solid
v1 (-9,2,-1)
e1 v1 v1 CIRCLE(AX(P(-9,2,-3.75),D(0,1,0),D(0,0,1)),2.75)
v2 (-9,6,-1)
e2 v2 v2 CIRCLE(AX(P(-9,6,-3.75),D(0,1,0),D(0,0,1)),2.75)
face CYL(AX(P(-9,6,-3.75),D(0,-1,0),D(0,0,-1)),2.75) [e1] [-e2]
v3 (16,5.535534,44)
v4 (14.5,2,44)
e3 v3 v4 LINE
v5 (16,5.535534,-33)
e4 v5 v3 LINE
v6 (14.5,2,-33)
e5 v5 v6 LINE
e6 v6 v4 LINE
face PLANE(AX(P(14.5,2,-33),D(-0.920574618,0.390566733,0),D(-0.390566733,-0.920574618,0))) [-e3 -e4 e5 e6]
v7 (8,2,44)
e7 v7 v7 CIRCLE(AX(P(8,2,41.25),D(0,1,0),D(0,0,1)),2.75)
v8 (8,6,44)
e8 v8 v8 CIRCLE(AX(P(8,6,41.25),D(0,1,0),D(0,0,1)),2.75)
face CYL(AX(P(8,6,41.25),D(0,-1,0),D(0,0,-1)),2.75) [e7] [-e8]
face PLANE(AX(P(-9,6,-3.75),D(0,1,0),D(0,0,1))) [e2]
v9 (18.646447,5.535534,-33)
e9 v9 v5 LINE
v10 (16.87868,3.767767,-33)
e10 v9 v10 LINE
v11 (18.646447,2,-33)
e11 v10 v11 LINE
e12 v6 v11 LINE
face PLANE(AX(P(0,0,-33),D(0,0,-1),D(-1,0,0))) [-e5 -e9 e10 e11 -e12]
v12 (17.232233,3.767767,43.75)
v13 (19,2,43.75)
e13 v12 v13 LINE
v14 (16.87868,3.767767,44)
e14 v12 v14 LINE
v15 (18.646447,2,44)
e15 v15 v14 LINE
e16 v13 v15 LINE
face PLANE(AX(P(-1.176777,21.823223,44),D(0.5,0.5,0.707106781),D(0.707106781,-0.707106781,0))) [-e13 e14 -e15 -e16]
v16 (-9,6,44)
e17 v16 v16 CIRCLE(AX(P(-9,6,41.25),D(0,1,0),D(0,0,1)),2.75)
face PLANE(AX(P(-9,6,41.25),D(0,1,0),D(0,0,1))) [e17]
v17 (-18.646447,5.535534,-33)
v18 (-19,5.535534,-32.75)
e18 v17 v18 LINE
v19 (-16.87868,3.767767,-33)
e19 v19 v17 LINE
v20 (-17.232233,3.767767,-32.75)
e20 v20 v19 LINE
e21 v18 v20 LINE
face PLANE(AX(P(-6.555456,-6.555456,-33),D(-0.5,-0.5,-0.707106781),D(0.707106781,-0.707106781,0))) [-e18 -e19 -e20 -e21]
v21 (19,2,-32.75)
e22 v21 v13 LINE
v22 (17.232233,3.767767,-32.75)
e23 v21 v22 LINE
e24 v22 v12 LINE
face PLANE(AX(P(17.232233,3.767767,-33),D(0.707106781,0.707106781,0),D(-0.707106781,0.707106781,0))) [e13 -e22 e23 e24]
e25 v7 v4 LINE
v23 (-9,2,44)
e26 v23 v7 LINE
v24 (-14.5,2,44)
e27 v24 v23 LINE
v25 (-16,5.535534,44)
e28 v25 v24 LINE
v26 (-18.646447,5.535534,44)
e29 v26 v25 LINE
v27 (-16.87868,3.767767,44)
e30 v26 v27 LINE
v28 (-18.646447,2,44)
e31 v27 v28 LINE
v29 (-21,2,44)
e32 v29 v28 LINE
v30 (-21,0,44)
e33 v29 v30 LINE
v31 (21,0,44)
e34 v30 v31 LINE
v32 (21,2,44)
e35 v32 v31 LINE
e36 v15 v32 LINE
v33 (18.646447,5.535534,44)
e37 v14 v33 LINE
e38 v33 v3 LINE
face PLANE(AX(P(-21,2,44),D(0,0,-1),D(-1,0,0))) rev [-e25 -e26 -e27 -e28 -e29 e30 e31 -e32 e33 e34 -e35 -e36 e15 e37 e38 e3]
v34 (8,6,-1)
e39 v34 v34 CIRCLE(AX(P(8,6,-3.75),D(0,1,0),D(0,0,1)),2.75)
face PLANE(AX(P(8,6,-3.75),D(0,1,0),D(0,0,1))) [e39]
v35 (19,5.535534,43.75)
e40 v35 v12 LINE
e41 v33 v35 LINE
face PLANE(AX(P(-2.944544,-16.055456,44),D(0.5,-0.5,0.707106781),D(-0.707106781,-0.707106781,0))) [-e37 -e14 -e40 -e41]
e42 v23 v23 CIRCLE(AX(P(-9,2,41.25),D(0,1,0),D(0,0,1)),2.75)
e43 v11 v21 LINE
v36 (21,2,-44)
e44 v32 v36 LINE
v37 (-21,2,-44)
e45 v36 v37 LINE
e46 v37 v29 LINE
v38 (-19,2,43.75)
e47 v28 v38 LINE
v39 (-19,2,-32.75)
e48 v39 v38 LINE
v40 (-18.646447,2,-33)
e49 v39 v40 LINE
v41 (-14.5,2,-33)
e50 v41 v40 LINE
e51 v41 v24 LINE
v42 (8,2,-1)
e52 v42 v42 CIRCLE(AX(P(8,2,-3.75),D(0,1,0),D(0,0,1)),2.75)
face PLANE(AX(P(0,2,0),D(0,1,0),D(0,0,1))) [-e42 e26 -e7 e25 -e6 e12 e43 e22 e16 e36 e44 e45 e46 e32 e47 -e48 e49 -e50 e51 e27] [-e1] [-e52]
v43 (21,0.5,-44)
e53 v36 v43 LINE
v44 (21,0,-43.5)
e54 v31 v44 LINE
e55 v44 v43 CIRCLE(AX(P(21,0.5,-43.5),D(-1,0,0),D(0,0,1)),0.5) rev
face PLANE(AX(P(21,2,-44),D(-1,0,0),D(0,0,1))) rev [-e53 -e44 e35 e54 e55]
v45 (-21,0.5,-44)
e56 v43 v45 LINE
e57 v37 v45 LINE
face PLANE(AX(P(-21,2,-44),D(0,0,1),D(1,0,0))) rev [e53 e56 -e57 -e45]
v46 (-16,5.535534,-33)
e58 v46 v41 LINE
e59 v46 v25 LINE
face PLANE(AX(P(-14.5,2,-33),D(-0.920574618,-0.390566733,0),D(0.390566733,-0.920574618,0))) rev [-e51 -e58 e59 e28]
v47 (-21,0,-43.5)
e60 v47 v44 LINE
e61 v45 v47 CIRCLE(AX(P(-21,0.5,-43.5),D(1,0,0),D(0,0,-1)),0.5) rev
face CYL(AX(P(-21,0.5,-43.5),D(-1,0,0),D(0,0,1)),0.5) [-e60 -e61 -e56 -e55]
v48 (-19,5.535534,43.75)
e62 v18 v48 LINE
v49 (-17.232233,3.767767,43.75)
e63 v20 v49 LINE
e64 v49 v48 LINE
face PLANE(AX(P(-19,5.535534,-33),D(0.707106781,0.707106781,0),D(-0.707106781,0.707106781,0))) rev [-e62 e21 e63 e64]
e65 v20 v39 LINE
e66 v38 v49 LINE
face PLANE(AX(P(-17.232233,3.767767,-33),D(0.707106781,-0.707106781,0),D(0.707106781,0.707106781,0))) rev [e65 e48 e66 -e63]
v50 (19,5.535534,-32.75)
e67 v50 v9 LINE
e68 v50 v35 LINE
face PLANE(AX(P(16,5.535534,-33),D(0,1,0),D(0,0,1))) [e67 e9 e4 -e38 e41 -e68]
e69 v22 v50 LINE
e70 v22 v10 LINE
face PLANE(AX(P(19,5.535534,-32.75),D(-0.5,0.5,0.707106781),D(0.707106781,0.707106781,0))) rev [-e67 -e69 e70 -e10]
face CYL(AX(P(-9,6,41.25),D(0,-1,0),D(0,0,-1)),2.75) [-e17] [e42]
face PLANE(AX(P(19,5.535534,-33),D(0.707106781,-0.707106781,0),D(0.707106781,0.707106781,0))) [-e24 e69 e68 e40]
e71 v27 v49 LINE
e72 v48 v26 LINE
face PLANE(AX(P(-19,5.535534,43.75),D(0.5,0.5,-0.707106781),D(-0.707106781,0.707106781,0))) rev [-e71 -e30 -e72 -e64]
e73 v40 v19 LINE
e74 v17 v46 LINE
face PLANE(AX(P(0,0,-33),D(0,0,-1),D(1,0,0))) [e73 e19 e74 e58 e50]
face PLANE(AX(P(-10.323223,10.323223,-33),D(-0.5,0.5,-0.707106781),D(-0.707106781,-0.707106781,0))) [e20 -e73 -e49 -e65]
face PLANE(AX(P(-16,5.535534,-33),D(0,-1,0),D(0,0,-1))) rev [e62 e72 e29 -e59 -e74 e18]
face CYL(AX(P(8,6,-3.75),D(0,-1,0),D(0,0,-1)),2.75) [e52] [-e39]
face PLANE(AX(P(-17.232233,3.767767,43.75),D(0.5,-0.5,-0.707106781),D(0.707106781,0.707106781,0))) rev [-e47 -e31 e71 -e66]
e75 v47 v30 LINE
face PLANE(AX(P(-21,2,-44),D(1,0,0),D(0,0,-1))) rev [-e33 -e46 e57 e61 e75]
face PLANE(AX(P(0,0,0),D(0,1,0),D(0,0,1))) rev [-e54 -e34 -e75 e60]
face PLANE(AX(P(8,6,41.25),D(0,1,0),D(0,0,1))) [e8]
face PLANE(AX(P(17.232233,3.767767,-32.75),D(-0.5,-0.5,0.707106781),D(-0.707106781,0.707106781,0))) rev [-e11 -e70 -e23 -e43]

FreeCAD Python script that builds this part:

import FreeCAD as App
import Part
import Sketcher


def edges_at(feature, points):
    """Names of the edges that pass closest to the given points."""
    edges = feature.Shape.Edges
    near = lambda p: min(range(len(edges)), key=lambda i: edges[i].distToShape(Part.Vertex(*p))[0])
    return sorted({f"Edge{near(p) + 1}" for p in points})


def add_polygon(sketch, points):
    """Adds a closed chain of lines whose ends are joined by coincident constraints."""
    first, n = sketch.GeometryCount, len(points)
    for a, b in zip(points, points[1:] + points[:1]):
        sketch.addGeometry(Part.LineSegment(App.Vector(*a, 0), App.Vector(*b, 0)), False)
    for i in range(n):
        sketch.addConstraint(Sketcher.Constraint("Coincident", first + i, 2, first + (i + 1) % n, 1))

doc = App.newDocument("Part")
body = doc.addObject("PartDesign::Body", "Body")

sketch1 = doc.addObject("Sketcher::SketchObject", "Sketch")
body.addObject(sketch1)
sketch1.AttachmentSupport = (doc.XZ_Plane, [""])
sketch1.MapMode = "FlatFace"
add_polygon(sketch1, [(-21, -44), (-21, 44), (21, 44), (21, -44)])
sketch1.addConstraint([
    Sketcher.Constraint("Vertical", 0),
    Sketcher.Constraint("Horizontal", 1),
    Sketcher.Constraint("Vertical", 2),
    Sketcher.Constraint("Horizontal", 3),
    Sketcher.Constraint("Symmetric", 0, 2, 2, 2, -1, 1),
    Sketcher.Constraint("DistanceX", 1, 1, 1, 2, 42.0),
    Sketcher.Constraint("DistanceY", 0, 1, 0, 2, 88.0),
])
pad1 = doc.addObject("PartDesign::Pad", "Pad")
body.addObject(pad1)
pad1.Profile = sketch1
pad1.Length = 2
pad1.Reversed = True

sketch2 = doc.addObject("Sketcher::SketchObject", "Sketch001")
body.addObject(sketch2)
sketch2.AttachmentSupport = (doc.XY_Plane, [""])
sketch2.MapMode = "FlatFace"
sketch2.AttachmentOffset = App.Placement(App.Vector(0, 0, 44), App.Rotation())
add_polygon(sketch2, [(16, 5.535534), (14.5, 2), (19, 2), (17.232233, 3.767767), (19, 5.535534)])
sketch2.addConstraint([
    Sketcher.Constraint("Horizontal", 1),
    Sketcher.Constraint("Horizontal", 4),
    Sketcher.Constraint("Perpendicular", 2, 3),
    Sketcher.Constraint("Vertical", 1, 2, 3, 2),
    Sketcher.Constraint("Equal", 2, 3),
    Sketcher.Constraint("DistanceX", 4, 2, 4, 1, 3.0),
    Sketcher.Constraint("DistanceX", 1, 1, 1, 2, 4.5),
    Sketcher.Constraint("DistanceY", -1, 1, 0, 2, 2.0),
    Sketcher.Constraint("DistanceX", -1, 1, 1, 2, 19.0),
    Sketcher.Constraint("Distance", 2, 2.5),
])
pad2 = doc.addObject("PartDesign::Pad", "Pad001")
body.addObject(pad2)
pad2.Profile = sketch2
pad2.Length = 77
pad2.Reversed = True
doc.recompute()

mirrored = doc.addObject("PartDesign::Mirrored", "Mirrored")
body.addObject(mirrored)
mirrored.Originals = [pad2]
mirrored.MirrorPlane = (doc.YZ_Plane, [""])
body.Tip = mirrored

sketch3 = doc.addObject("Sketcher::SketchObject", "Sketch002")
body.addObject(sketch3)
sketch3.AttachmentSupport = (doc.XZ_Plane, [""])
sketch3.MapMode = "FlatFace"
sketch3.AttachmentOffset = App.Placement(App.Vector(0, 0, -2), App.Rotation())
sketch3.addGeometry([
    Part.Circle(App.Vector(-9, 41.25, 0), App.Vector(0, 0, 1), 2.75),
    Part.Circle(App.Vector(8, 41.25, 0), App.Vector(0, 0, 1), 2.75),
    Part.Circle(App.Vector(8, -3.75, 0), App.Vector(0, 0, 1), 2.75),
    Part.Circle(App.Vector(-9, -3.75, 0), App.Vector(0, 0, 1), 2.75),
], False)
sketch3.addConstraint([
    Sketcher.Constraint("Equal", 0, 1),
    Sketcher.Constraint("Equal", 1, 2),
    Sketcher.Constraint("Equal", 2, 3),
    Sketcher.Constraint("Horizontal", 0, 3, 1, 3),
    Sketcher.Constraint("Horizontal", 2, 3, 3, 3),
    Sketcher.Constraint("Vertical", 1, 3, 2, 3),
    Sketcher.Constraint("Vertical", 0, 3, 3, 3),
    Sketcher.Constraint("Diameter", 0, 5.5),
    Sketcher.Constraint("DistanceX", 0, 3, -1, 1, 9.0),
    Sketcher.Constraint("DistanceX", -1, 1, 1, 3, 8.0),
    Sketcher.Constraint("DistanceY", 2, 3, 1, 3, 45.0),
    Sketcher.Constraint("DistanceY", -1, 1, 0, 3, 41.25),
])
pad3 = doc.addObject("PartDesign::Pad", "Pad002")
body.addObject(pad3)
pad3.Profile = sketch3
pad3.Length = 4
pad3.Reversed = True
doc.recompute()

fillet = doc.addObject("PartDesign::Fillet", "Fillet")
body.addObject(fillet)
fillet.Base = (pad3, edges_at(pad3, [(0, 0, -44)]))
fillet.Radius = 0.5
doc.recompute()

chamfer = doc.addObject("PartDesign::Chamfer", "Chamfer")
body.addObject(chamfer)
chamfer.Base = (fillet, edges_at(fillet, [
    (18.116, 4.652, -33),
    (18.116, 2.884, -33),
    (18.116, 2.884, 44),
    (18.116, 4.652, 44),
    (-18.116, 2.884, 44),
    (-18.116, 4.652, 44),
    (-18.116, 2.884, -33),
    (-18.116, 4.652, -33),
]))
chamfer.Size = 0.25

doc.recompute()
